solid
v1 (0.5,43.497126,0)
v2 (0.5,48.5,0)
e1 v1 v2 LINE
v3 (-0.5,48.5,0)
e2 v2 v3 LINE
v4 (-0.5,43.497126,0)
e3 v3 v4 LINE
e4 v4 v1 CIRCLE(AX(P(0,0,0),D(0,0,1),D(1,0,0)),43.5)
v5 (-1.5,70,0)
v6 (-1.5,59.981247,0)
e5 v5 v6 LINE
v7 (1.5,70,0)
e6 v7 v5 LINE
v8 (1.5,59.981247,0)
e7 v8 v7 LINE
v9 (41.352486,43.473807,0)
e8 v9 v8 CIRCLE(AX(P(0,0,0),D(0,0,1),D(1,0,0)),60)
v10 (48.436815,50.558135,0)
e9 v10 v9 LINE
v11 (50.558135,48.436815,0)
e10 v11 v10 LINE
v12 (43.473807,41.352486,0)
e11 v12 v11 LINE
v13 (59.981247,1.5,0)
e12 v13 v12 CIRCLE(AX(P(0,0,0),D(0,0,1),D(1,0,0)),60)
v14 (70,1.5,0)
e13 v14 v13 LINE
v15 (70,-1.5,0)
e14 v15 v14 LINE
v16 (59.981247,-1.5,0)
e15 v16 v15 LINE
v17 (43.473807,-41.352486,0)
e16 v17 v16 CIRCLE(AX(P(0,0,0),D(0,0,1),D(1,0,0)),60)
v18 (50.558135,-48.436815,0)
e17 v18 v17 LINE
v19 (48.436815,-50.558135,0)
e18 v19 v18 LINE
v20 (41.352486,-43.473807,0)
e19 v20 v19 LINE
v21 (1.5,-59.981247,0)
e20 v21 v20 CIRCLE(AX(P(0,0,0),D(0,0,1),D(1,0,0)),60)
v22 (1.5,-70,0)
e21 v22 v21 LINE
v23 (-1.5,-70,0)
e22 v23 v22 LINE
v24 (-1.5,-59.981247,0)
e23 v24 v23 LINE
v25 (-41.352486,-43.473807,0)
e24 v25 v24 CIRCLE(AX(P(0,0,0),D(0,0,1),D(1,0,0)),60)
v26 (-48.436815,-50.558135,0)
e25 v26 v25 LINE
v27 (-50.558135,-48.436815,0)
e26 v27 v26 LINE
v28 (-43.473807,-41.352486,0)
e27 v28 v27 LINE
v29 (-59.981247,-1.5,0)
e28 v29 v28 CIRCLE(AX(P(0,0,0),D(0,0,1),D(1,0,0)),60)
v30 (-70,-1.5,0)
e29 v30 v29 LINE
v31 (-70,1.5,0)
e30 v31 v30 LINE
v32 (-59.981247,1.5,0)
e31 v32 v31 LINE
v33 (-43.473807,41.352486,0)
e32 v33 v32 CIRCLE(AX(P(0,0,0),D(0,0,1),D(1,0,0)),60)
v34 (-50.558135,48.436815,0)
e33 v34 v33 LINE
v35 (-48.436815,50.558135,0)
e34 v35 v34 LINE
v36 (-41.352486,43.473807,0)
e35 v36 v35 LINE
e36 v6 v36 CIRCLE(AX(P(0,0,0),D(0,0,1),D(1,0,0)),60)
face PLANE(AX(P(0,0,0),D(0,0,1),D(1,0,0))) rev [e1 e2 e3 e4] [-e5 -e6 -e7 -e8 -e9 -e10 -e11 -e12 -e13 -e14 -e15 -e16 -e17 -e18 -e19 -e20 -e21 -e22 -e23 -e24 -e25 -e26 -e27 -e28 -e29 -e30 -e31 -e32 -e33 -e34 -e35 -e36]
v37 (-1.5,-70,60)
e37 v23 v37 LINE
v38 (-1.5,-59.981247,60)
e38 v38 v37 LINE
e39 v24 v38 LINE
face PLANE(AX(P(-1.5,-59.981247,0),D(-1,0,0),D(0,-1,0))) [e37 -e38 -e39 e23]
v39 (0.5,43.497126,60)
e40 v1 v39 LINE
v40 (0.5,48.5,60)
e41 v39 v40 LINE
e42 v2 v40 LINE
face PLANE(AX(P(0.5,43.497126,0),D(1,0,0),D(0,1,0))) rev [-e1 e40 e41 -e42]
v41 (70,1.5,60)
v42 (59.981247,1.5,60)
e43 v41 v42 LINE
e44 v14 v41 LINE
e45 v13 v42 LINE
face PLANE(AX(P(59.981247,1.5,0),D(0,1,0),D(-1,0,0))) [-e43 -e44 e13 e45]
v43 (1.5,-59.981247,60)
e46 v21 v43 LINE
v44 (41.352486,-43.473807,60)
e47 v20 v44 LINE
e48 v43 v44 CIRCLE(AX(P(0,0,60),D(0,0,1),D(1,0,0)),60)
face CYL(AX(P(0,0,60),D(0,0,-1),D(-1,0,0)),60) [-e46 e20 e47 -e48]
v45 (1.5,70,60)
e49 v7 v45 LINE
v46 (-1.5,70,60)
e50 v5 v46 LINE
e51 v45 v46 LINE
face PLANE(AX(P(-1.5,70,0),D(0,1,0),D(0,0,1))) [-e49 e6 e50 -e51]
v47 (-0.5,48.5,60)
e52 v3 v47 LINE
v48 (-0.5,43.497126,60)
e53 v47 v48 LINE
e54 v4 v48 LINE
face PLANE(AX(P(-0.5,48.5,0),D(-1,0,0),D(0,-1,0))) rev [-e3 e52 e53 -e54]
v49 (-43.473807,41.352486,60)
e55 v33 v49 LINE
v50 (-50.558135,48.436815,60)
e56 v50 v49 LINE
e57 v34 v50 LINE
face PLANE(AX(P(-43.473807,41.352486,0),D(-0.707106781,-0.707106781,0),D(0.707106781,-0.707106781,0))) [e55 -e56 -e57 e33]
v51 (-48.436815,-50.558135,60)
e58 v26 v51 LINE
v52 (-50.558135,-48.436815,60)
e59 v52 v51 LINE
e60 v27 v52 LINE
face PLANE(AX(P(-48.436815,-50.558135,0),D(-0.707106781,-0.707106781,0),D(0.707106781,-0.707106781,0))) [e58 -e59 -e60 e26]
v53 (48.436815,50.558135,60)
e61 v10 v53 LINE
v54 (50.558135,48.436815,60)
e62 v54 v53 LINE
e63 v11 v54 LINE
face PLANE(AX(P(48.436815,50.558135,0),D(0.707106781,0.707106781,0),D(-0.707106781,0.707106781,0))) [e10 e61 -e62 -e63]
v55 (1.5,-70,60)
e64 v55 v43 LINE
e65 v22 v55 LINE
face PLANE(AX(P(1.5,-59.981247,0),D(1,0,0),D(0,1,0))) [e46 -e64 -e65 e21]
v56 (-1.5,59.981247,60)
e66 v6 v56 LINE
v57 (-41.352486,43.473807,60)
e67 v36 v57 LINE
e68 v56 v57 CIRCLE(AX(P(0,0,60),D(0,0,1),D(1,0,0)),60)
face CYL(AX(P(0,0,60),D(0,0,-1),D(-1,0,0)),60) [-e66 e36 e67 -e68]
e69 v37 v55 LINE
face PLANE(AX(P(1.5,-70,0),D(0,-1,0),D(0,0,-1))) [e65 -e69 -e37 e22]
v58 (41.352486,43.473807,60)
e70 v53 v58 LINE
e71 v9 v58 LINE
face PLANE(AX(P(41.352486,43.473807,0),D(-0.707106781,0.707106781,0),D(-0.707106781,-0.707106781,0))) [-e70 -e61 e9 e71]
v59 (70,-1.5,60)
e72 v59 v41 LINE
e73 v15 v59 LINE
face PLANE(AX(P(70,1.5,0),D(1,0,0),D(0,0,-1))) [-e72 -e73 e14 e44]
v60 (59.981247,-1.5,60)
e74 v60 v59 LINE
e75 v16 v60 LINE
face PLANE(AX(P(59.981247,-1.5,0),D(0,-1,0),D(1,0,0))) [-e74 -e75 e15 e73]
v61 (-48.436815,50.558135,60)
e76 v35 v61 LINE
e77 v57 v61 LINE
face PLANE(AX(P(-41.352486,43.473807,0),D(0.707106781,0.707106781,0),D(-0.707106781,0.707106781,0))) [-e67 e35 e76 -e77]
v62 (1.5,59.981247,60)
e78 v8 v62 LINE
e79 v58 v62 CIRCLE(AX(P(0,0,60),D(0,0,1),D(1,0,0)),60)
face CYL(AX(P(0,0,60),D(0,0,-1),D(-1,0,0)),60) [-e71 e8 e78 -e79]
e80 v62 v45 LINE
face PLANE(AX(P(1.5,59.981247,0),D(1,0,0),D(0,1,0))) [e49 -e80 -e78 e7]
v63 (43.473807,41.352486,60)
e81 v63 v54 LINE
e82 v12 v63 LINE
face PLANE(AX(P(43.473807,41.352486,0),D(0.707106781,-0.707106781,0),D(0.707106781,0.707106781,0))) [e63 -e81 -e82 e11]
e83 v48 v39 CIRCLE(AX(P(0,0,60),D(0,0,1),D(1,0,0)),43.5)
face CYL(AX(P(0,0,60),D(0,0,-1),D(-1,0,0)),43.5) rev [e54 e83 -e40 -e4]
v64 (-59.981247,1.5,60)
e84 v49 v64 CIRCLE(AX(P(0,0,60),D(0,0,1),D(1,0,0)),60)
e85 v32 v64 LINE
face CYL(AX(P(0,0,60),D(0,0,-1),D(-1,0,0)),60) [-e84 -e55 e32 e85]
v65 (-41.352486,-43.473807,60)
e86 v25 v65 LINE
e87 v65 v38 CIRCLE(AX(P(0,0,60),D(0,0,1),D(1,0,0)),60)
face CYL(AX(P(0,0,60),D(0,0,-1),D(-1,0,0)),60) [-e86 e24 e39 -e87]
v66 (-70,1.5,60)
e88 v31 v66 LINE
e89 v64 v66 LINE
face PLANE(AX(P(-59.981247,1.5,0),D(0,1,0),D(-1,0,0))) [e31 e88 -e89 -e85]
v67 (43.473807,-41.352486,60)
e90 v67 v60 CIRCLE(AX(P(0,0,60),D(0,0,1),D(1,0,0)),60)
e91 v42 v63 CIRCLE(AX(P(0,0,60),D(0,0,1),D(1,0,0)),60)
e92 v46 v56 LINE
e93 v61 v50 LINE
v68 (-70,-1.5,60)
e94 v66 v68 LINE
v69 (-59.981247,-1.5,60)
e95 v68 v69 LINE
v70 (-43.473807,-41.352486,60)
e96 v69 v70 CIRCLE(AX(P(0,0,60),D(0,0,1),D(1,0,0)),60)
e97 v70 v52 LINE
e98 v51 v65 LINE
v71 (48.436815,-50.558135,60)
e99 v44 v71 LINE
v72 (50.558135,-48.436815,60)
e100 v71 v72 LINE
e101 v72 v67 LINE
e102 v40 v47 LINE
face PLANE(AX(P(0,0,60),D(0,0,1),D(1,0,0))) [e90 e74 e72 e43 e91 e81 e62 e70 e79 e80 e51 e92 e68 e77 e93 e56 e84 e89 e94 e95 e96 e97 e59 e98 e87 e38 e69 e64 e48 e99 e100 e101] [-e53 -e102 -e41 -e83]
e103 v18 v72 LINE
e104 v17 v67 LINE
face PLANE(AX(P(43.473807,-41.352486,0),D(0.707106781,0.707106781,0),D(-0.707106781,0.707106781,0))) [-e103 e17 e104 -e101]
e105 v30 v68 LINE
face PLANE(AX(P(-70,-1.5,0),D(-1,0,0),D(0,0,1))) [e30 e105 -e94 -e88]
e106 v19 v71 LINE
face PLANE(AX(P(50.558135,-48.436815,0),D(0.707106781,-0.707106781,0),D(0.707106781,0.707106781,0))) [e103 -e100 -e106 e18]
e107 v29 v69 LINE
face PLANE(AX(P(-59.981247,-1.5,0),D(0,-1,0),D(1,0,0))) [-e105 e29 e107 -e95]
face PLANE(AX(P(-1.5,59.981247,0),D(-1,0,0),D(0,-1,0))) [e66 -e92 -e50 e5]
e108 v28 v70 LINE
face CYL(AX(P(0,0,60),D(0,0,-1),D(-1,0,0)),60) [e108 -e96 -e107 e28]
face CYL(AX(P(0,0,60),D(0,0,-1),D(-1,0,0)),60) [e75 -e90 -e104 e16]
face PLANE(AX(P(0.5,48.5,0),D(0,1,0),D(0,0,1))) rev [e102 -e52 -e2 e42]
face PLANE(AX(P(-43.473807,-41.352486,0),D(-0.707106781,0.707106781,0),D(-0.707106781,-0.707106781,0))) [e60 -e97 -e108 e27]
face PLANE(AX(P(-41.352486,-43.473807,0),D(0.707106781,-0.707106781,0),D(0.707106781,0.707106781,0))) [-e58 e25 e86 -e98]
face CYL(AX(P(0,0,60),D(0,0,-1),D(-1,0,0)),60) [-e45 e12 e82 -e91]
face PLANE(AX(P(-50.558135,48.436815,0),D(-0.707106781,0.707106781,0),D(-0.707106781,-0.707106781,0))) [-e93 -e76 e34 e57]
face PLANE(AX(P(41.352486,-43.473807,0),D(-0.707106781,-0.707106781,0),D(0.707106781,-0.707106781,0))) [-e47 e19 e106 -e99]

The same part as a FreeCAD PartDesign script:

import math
import FreeCAD as App
import Part
import Sketcher
from FreeCAD import Vector
Q = App.Units.Quantity

doc = App.newDocument("Part")
body = doc.addObject("PartDesign::Body", "Body")

# Sketch on XY plane
sketch1 = doc.addObject("Sketcher::SketchObject", "Sketch")
body.addObject(sketch1)
sketch1.AttachmentSupport = (doc.XY_Plane, [""])
sketch1.MapMode = "FlatFace"
sketch1.addGeometry([
    Part.Circle(Vector(0, 0, 0), Vector(0, 0, 1), 60),
    Part.Circle(Vector(0, 0, 0), Vector(0, 0, 1), 43.5),
], False)
sketch1.addConstraint([
    Sketcher.Constraint("Coincident", 0, 3, -1, 1),
    Sketcher.Constraint("Coincident", 1, 3, -1, 1),
    Sketcher.Constraint("Diameter", 0, Q("120 mm")),
    Sketcher.Constraint("Diameter", 1, Q("87 mm")),
])
pad1 = doc.addObject("PartDesign::Pad", "Pad")
body.addObject(pad1)
pad1.Profile = sketch1
pad1.Length = 60

# Sketch on XY plane
sketch2 = doc.addObject("Sketcher::SketchObject", "Sketch001")
body.addObject(sketch2)
sketch2.AttachmentSupport = (doc.XY_Plane, [""])
sketch2.MapMode = "FlatFace"
sketch2.addGeometry([
    Part.LineSegment(Vector(-0.5, 48.5, 0), Vector(-0.5, 43.497126, 0)),
    Part.ArcOfCircle(Part.Circle(Vector(0, -0.000002, 0), Vector(0, 0, 1), 43.500002), math.radians(89.341413), math.radians(90.658587)),
    Part.LineSegment(Vector(0.5, 43.497126, 0), Vector(0.5, 48.5, 0)),
    Part.LineSegment(Vector(0.5, 48.5, 0), Vector(-0.5, 48.5, 0)),
], False)
sketch2.addConstraint([
    Sketcher.Constraint("Coincident", 0, 2, 1, 2),
    Sketcher.Constraint("Coincident", 1, 1, 2, 1),
    Sketcher.Constraint("Coincident", 2, 2, 3, 1),
    Sketcher.Constraint("Coincident", 3, 2, 0, 1),
    Sketcher.Constraint("Vertical", 0),
    Sketcher.Constraint("Vertical", 2),
    Sketcher.Constraint("Horizontal", 3),
    Sketcher.Constraint("Coincident", 1, 3, -1, 1),
    Sketcher.Constraint("Horizontal", 0, 2, 1, 1),
    Sketcher.Constraint("DistanceX", 3, 2, 3, 1, Q("1 mm")),
    Sketcher.Constraint("DistanceY", -1, 1, 2, 2, Q("48.5 mm")),
    Sketcher.Constraint("Radius", 1, Q("43.500002 mm")),
])
pocket1 = doc.addObject("PartDesign::Pocket", "Pocket")
body.addObject(pocket1)
pocket1.Profile = sketch2
pocket1.Length = 60
pocket1.Reversed = True

# Sketch on XY plane
sketch3 = doc.addObject("Sketcher::SketchObject", "Sketch002")
body.addObject(sketch3)
sketch3.AttachmentSupport = (doc.XY_Plane, [""])
sketch3.MapMode = "FlatFace"
sketch3.AttachmentOffset = App.Placement(Vector(0, 0, 60), App.Rotation())
sketch3.addGeometry([
    Part.LineSegment(Vector(48.436815, 50.558135, 0), Vector(41.352486, 43.473807, 0)),  # 0
    Part.ArcOfCircle(Part.Circle(Vector(-0.000001, -0.000001, 0), Vector(0, 0, 1), 60.000002), math.radians(43.567456), math.radians(46.432544)),  # 1
    Part.LineSegment(Vector(43.473807, 41.352486, 0), Vector(50.558135, 48.436815, 0)),  # 2
    Part.LineSegment(Vector(50.558135, 48.436815, 0), Vector(48.436815, 50.558135, 0)),  # 3
    Part.LineSegment(Vector(1.5, 59.981247, 0), Vector(1.5, 70, 0)),  # 4
    Part.LineSegment(Vector(1.5, 70, 0), Vector(-1.5, 70, 0)),  # 5
    Part.LineSegment(Vector(-1.5, 70, 0), Vector(-1.5, 59.981247, 0)),  # 6
    Part.ArcOfCircle(Part.Circle(Vector(0, 0.000001, 0), Vector(0, 0, 1), 59.999999), math.radians(88.567456), math.radians(91.432544)),  # 7
    Part.LineSegment(Vector(70, 1.5, 0), Vector(59.981247, 1.5, 0)),  # 8
    Part.ArcOfCircle(Part.Circle(Vector(0.000001, 0, 0), Vector(0, 0, 1), 59.999999), math.radians(-1.432544), math.radians(1.432544)),  # 9
    Part.LineSegment(Vector(59.981247, -1.5, 0), Vector(70, -1.5, 0)),  # 10
    Part.LineSegment(Vector(70, -1.5, 0), Vector(70, 1.5, 0)),  # 11
    Part.LineSegment(Vector(50.558135, -48.436815, 0), Vector(43.473807, -41.352486, 0)),  # 12
    Part.ArcOfCircle(Part.Circle(Vector(-0.000001, 0.000001, 0), Vector(0, 0, 1), 60.000002), math.radians(-46.432544), math.radians(-43.567456)),  # 13
    Part.LineSegment(Vector(41.352486, -43.473807, 0), Vector(48.436815, -50.558135, 0)),  # 14
    Part.LineSegment(Vector(48.436815, -50.558135, 0), Vector(50.558135, -48.436815, 0)),  # 15
    Part.LineSegment(Vector(1.5, -70, 0), Vector(1.5, -59.981247, 0)),  # 16
    Part.ArcOfCircle(Part.Circle(Vector(0, -0.000001, 0), Vector(0, 0, 1), 59.999999), math.radians(-91.432544), math.radians(-88.567456)),  # 17
    Part.LineSegment(Vector(-1.5, -59.981247, 0), Vector(-1.5, -70, 0)),  # 18
    Part.LineSegment(Vector(-1.5, -70, 0), Vector(1.5, -70, 0)),  # 19
    Part.LineSegment(Vector(-48.436815, -50.558135, 0), Vector(-41.352486, -43.473807, 0)),  # 20
    Part.ArcOfCircle(Part.Circle(Vector(0.000001, 0.000001, 0), Vector(0, 0, 1), 60.000002), math.radians(-136.432544), math.radians(-133.567456)),  # 21
    Part.LineSegment(Vector(-43.473807, -41.352486, 0), Vector(-50.558135, -48.436815, 0)),  # 22
    Part.LineSegment(Vector(-50.558135, -48.436815, 0), Vector(-48.436815, -50.558135, 0)),  # 23
    Part.LineSegment(Vector(-70, -1.5, 0), Vector(-59.981247, -1.5, 0)),  # 24
    Part.ArcOfCircle(Part.Circle(Vector(-0.000001, 0, 0), Vector(0, 0, 1), 59.999999), math.radians(178.567456), math.radians(181.432544)),  # 25
    Part.LineSegment(Vector(-59.981247, 1.5, 0), Vector(-70, 1.5, 0)),  # 26
    Part.LineSegment(Vector(-70, 1.5, 0), Vector(-70, -1.5, 0)),  # 27
    Part.LineSegment(Vector(-50.558135, 48.436815, 0), Vector(-43.473807, 41.352486, 0)),  # 28
    Part.ArcOfCircle(Part.Circle(Vector(0.000001, -0.000001, 0), Vector(0, 0, 1), 60.000002), math.radians(133.567456), math.radians(136.432544)),  # 29
    Part.LineSegment(Vector(-41.352486, 43.473807, 0), Vector(-48.436815, 50.558135, 0)),  # 30
    Part.LineSegment(Vector(-48.436815, 50.558135, 0), Vector(-50.558135, 48.436815, 0)),  # 31
], False)
sketch3.addConstraint([
    Sketcher.Constraint("Coincident", 0, 2, 1, 2),
    Sketcher.Constraint("Coincident", 1, 1, 2, 1),
    Sketcher.Constraint("Coincident", 2, 2, 3, 1),
    Sketcher.Constraint("Coincident", 3, 2, 0, 1),
    Sketcher.Constraint("Coincident", 4, 2, 5, 1),
    Sketcher.Constraint("Coincident", 5, 2, 6, 1),
    Sketcher.Constraint("Coincident", 6, 2, 7, 2),
    Sketcher.Constraint("Coincident", 7, 1, 4, 1),
    Sketcher.Constraint("Coincident", 8, 2, 9, 2),
    Sketcher.Constraint("Coincident", 9, 1, 10, 1),
    Sketcher.Constraint("Coincident", 10, 2, 11, 1),
    Sketcher.Constraint("Coincident", 11, 2, 8, 1),
    Sketcher.Constraint("Coincident", 12, 2, 13, 2),
    Sketcher.Constraint("Coincident", 13, 1, 14, 1),
    Sketcher.Constraint("Coincident", 14, 2, 15, 1),
    Sketcher.Constraint("Coincident", 15, 2, 12, 1),
    Sketcher.Constraint("Coincident", 16, 2, 17, 2),
    Sketcher.Constraint("Coincident", 17, 1, 18, 1),
    Sketcher.Constraint("Coincident", 18, 2, 19, 1),
    Sketcher.Constraint("Coincident", 19, 2, 16, 1),
    Sketcher.Constraint("Coincident", 20, 2, 21, 2),
    Sketcher.Constraint("Coincident", 21, 1, 22, 1),
    Sketcher.Constraint("Coincident", 22, 2, 23, 1),
    Sketcher.Constraint("Coincident", 23, 2, 20, 1),
    Sketcher.Constraint("Coincident", 24, 2, 25, 2),
    Sketcher.Constraint("Coincident", 25, 1, 26, 1),
    Sketcher.Constraint("Coincident", 26, 2, 27, 1),
    Sketcher.Constraint("Coincident", 27, 2, 24, 1),
    Sketcher.Constraint("Coincident", 28, 2, 29, 2),
    Sketcher.Constraint("Coincident", 29, 1, 30, 1),
    Sketcher.Constraint("Coincident", 30, 2, 31, 1),
    Sketcher.Constraint("Coincident", 31, 2, 28, 1),
    Sketcher.Constraint("Vertical", 4),
    Sketcher.Constraint("Horizontal", 5),
    Sketcher.Constraint("Vertical", 6),
    Sketcher.Constraint("Horizontal", 8),
    Sketcher.Constraint("Horizontal", 10),
    Sketcher.Constraint("Vertical", 11),
    Sketcher.Constraint("Vertical", 16),
    Sketcher.Constraint("Vertical", 18),
    Sketcher.Constraint("Horizontal", 19),
    Sketcher.Constraint("Horizontal", 24),
    Sketcher.Constraint("Horizontal", 26),
    Sketcher.Constraint("Vertical", 27),
    Sketcher.Constraint("Coincident", 1, 3, -1, 1),
    Sketcher.Constraint("Coincident", 7, 3, -1, 1),
    Sketcher.Constraint("Coincident", 9, 3, -1, 1),
    Sketcher.Constraint("Coincident", 13, 3, -1, 1),
    Sketcher.Constraint("Coincident", 17, 3, -1, 1),
    Sketcher.Constraint("Coincident", 21, 3, -1, 1),
    Sketcher.Constraint("Coincident", 25, 3, -1, 1),
    Sketcher.Constraint("Coincident", 29, 3, -1, 1),
    Sketcher.Constraint("Equal", 7, 9),
    Sketcher.Constraint("Equal", 1, 13),
    Sketcher.Constraint("Equal", 9, 17),
    Sketcher.Constraint("Equal", 13, 21),
    Sketcher.Constraint("Equal", 17, 25),
    Sketcher.Constraint("Equal", 21, 29),
    Sketcher.Constraint("Symmetric", 4, 2, 18, 2, -1, 1),
    Sketcher.Constraint("Symmetric", 2, 2, 22, 2, -1, 1),
    Sketcher.Constraint("Symmetric", 3, 2, 23, 2, -1, 1),
    Sketcher.Constraint("Symmetric", 10, 2, 26, 2, -1, 1),
    Sketcher.Constraint("Symmetric", 14, 2, 30, 2, -1, 1),
    Sketcher.Constraint("Symmetric", 15, 2, 31, 2, -1, 1),
    Sketcher.Constraint("Symmetric", 15, 2, 22, 2, -2),
    Sketcher.Constraint("Symmetric", 14, 2, 23, 2, -2),
    Sketcher.Constraint("Parallel", 0, 2),
    Sketcher.Constraint("Perpendicular", 2, 3),
    Sketcher.Constraint("Parallel", 3, 12),
    Sketcher.Constraint("Parallel", 12, 14),
    Sketcher.Constraint("Perpendicular", 14, 15),
    Sketcher.Constraint("Parallel", 15, 20),
    Sketcher.Constraint("Parallel", 20, 22),
    Sketcher.Constraint("Parallel", 23, 28),
    Sketcher.Constraint("Parallel", 28, 30),
    Sketcher.Constraint("Horizontal", 6, 2, 7, 1),
    Sketcher.Constraint("Horizontal", 16, 2, 17, 1),
    Sketcher.Constraint("Horizontal", 10, 2, 24, 2),
    Sketcher.Constraint("Horizontal", 11, 2, 25, 1),
    Sketcher.Constraint("Equal", 26, 4),
    Sketcher.Constraint("Equal", 19, 11),
    Sketcher.Constraint("Equal", 0, 2),
    Sketcher.Constraint("Radius", 1, Q("60.000002 mm")),
    Sketcher.Constraint("Radius", 7, Q("59.999999 mm")),
    Sketcher.Constraint("DistanceX", 5, 2, 5, 1, Q("3 mm")),
    Sketcher.Constraint("Distance", 3, Q("3 mm")),
    Sketcher.Constraint("DistanceY", -1, 1, 4, 2, Q("70 mm")),
    Sketcher.Constraint("DistanceX", 1, 1, 2, 2, Q("7.084328 mm")),
])
pad2 = doc.addObject("PartDesign::Pad", "Pad001")
body.addObject(pad2)
pad2.Profile = sketch3
pad2.Length = 60
pad2.Reversed = True

doc.recompute()
